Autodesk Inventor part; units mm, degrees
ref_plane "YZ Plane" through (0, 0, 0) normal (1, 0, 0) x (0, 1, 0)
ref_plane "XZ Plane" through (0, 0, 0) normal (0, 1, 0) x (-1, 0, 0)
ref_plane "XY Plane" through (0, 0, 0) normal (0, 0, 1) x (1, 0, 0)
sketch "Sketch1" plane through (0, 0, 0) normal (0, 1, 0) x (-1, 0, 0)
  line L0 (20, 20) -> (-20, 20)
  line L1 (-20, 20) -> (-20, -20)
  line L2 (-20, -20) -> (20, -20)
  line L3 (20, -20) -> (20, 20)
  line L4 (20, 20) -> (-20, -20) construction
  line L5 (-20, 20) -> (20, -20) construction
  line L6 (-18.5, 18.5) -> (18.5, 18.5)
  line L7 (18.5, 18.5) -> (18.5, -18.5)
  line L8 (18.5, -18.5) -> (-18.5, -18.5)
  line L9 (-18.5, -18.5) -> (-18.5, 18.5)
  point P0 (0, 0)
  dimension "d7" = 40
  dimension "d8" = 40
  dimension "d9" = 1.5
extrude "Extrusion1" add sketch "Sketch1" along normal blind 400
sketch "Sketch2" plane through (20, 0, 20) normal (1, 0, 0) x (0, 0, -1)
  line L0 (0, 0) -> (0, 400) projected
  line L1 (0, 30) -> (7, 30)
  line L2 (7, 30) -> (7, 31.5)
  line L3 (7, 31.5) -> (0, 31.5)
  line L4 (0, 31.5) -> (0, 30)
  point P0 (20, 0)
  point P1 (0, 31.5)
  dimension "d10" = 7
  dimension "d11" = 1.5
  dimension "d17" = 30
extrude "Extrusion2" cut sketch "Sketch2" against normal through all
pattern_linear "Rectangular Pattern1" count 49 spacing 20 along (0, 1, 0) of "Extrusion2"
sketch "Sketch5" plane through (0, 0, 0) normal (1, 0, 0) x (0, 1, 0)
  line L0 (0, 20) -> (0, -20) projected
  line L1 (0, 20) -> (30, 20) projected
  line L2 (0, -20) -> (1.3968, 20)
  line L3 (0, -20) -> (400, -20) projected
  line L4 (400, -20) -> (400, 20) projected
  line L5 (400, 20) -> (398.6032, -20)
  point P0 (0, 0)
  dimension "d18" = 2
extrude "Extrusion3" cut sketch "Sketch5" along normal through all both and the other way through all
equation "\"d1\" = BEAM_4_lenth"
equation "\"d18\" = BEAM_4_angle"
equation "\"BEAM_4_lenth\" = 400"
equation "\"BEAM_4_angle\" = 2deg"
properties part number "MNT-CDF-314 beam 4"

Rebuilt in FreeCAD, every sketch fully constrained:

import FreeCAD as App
import Part
import Sketcher

V = App.Vector
Q = App.Units.Quantity

doc = App.newDocument("Part")
body = doc.addObject("PartDesign::Body", "Body")

sketch1 = body.newObject("Sketcher::SketchObject", "Sketch")
sketch1.AttachmentSupport = (doc.getObject("XZ_Plane"), [""])
sketch1.MapMode = "FlatFace"
sketch1.addGeometry([
    Part.LineSegment(V(-20, -20, 0), V(-20, 20, 0)),
    Part.LineSegment(V(-20, 20, 0), V(20, 20, 0)),
    Part.LineSegment(V(20, 20, 0), V(20, -20, 0)),
    Part.LineSegment(V(20, -20, 0), V(-20, -20, 0)),
    Part.LineSegment(V(18.5, -18.5, 0), V(18.5, 18.5, 0)),
    Part.LineSegment(V(18.5, 18.5, 0), V(-18.5, 18.5, 0)),
    Part.LineSegment(V(-18.5, 18.5, 0), V(-18.5, -18.5, 0)),
    Part.LineSegment(V(-18.5, -18.5, 0), V(18.5, -18.5, 0)),
], False)
sketch1.addConstraint([
    Sketcher.Constraint("Coincident", 0, 2, 1, 1),
    Sketcher.Constraint("Coincident", 1, 2, 2, 1),
    Sketcher.Constraint("Coincident", 2, 2, 3, 1),
    Sketcher.Constraint("Coincident", 3, 2, 0, 1),
    Sketcher.Constraint("Coincident", 4, 2, 5, 1),
    Sketcher.Constraint("Coincident", 5, 2, 6, 1),
    Sketcher.Constraint("Coincident", 6, 2, 7, 1),
    Sketcher.Constraint("Coincident", 7, 2, 4, 1),
    Sketcher.Constraint("Vertical", 0),
    Sketcher.Constraint("Horizontal", 1),
    Sketcher.Constraint("Vertical", 2),
    Sketcher.Constraint("Horizontal", 3),
    Sketcher.Constraint("Vertical", 4),
    Sketcher.Constraint("Horizontal", 5),
    Sketcher.Constraint("Vertical", 6),
    Sketcher.Constraint("Horizontal", 7),
    Sketcher.Constraint("Symmetric", 0, 2, 2, 2, -1, 1),
    Sketcher.Constraint("Symmetric", 4, 2, 6, 2, -1, 1),
    Sketcher.Constraint("Equal", 3, 0),
    Sketcher.Constraint("Equal", 7, 4),
    Sketcher.Constraint("DistanceX", 1, 1, 1, 2, Q("40 mm")),
    Sketcher.Constraint("DistanceX", 4, 2, 1, 2, Q("1.5 mm")),
])
pad1 = body.newObject("PartDesign::Pad", "Pad")
pad1.Profile = sketch1
pad1.Length = 400
pad1.Reversed = True

sketch2 = body.newObject("Sketcher::SketchObject", "Sketch001")
sketch2.AttachmentSupport = (doc.getObject("YZ_Plane"), [""])
sketch2.MapMode = "FlatFace"
sketch2.AttachmentOffset = App.Placement(V(0, 0, 20), App.Rotation())
sketch2.addGeometry([
    Part.LineSegment(V(31.5, 20, 0), V(30, 20, 0)),
    Part.LineSegment(V(30, 20, 0), V(30, 13, 0)),
    Part.LineSegment(V(30, 13, 0), V(31.5, 13, 0)),
    Part.LineSegment(V(31.5, 13, 0), V(31.5, 20, 0)),
], False)
sketch2.addConstraint([
    Sketcher.Constraint("Coincident", 0, 2, 1, 1),
    Sketcher.Constraint("Coincident", 1, 2, 2, 1),
    Sketcher.Constraint("Coincident", 2, 2, 3, 1),
    Sketcher.Constraint("Coincident", 3, 2, 0, 1),
    Sketcher.Constraint("Horizontal", 0),
    Sketcher.Constraint("Vertical", 1),
    Sketcher.Constraint("Horizontal", 2),
    Sketcher.Constraint("Vertical", 3),
    Sketcher.Constraint("DistanceY", 1, 2, 1, 1, Q("7 mm")),
    Sketcher.Constraint("DistanceX", 0, 2, 0, 1, Q("1.5 mm")),
    Sketcher.Constraint("DistanceX", -1, 1, 0, 2, Q("30 mm")),
    Sketcher.Constraint("DistanceY", -1, 1, 0, 2, Q("20 mm")),
])
pocket1 = body.newObject("PartDesign::Pocket", "Pocket")
pocket1.Profile = sketch2
pocket1.Type = "ThroughAll"
doc.recompute()

linearpattern = body.newObject("PartDesign::LinearPattern", "LinearPattern")
linearpattern.Originals = [pocket1]
linearpattern.Direction = (doc.getObject("Y_Axis"), [""])
linearpattern.Mode = "offset"
linearpattern.Offset = 20
linearpattern.Occurrences = 49
body.Tip = linearpattern

sketch3 = body.newObject("Sketcher::SketchObject", "Sketch002")
sketch3.AttachmentSupport = (doc.getObject("YZ_Plane"), [""])
sketch3.MapMode = "FlatFace"
sketch3.addGeometry([
    Part.LineSegment(V(1.3968, 20, 0), V(0, 20, 0)),
    Part.LineSegment(V(0, 20, 0), V(0, -20, 0)),
    Part.LineSegment(V(0, -20, 0), V(1.3968, 20, 0)),
    Part.LineSegment(V(400, 20, 0), V(398.6032, -20, 0)),
    Part.LineSegment(V(398.6032, -20, 0), V(400, -20, 0)),
    Part.LineSegment(V(400, -20, 0), V(400, 20, 0)),
], False)
sketch3.addConstraint([
    Sketcher.Constraint("Coincident", 0, 2, 1, 1),
    Sketcher.Constraint("Coincident", 1, 2, 2, 1),
    Sketcher.Constraint("Coincident", 2, 2, 0, 1),
    Sketcher.Constraint("Coincident", 3, 2, 4, 1),
    Sketcher.Constraint("Coincident", 4, 2, 5, 1),
    Sketcher.Constraint("Coincident", 5, 2, 3, 1),
    Sketcher.Constraint("Horizontal", 0),
    Sketcher.Constraint("Vertical", 1),
    Sketcher.Constraint("Horizontal", 4),
    Sketcher.Constraint("Vertical", 5),
    Sketcher.Constraint("Symmetric", 0, 2, 1, 2, -1, 1),
    Sketcher.Constraint("Parallel", 2, 3),
    Sketcher.Constraint("Horizontal", 1, 2, 3, 2),
    Sketcher.Constraint("Horizontal", 2, 2, 5, 2),
    Sketcher.Constraint("DistanceY", 1, 2, 1, 1, Q("40 mm")),
    Sketcher.Constraint("Angle", 2, Q("88 deg")),
    Sketcher.Constraint("DistanceX", -1, 1, 4, 2, Q("400 mm")),
])
pocket2 = body.newObject("PartDesign::Pocket", "Pocket001")
pocket2.Profile = sketch3
pocket2.Type = "ThroughAll"
pocket2.Midplane = True

doc.recompute()
